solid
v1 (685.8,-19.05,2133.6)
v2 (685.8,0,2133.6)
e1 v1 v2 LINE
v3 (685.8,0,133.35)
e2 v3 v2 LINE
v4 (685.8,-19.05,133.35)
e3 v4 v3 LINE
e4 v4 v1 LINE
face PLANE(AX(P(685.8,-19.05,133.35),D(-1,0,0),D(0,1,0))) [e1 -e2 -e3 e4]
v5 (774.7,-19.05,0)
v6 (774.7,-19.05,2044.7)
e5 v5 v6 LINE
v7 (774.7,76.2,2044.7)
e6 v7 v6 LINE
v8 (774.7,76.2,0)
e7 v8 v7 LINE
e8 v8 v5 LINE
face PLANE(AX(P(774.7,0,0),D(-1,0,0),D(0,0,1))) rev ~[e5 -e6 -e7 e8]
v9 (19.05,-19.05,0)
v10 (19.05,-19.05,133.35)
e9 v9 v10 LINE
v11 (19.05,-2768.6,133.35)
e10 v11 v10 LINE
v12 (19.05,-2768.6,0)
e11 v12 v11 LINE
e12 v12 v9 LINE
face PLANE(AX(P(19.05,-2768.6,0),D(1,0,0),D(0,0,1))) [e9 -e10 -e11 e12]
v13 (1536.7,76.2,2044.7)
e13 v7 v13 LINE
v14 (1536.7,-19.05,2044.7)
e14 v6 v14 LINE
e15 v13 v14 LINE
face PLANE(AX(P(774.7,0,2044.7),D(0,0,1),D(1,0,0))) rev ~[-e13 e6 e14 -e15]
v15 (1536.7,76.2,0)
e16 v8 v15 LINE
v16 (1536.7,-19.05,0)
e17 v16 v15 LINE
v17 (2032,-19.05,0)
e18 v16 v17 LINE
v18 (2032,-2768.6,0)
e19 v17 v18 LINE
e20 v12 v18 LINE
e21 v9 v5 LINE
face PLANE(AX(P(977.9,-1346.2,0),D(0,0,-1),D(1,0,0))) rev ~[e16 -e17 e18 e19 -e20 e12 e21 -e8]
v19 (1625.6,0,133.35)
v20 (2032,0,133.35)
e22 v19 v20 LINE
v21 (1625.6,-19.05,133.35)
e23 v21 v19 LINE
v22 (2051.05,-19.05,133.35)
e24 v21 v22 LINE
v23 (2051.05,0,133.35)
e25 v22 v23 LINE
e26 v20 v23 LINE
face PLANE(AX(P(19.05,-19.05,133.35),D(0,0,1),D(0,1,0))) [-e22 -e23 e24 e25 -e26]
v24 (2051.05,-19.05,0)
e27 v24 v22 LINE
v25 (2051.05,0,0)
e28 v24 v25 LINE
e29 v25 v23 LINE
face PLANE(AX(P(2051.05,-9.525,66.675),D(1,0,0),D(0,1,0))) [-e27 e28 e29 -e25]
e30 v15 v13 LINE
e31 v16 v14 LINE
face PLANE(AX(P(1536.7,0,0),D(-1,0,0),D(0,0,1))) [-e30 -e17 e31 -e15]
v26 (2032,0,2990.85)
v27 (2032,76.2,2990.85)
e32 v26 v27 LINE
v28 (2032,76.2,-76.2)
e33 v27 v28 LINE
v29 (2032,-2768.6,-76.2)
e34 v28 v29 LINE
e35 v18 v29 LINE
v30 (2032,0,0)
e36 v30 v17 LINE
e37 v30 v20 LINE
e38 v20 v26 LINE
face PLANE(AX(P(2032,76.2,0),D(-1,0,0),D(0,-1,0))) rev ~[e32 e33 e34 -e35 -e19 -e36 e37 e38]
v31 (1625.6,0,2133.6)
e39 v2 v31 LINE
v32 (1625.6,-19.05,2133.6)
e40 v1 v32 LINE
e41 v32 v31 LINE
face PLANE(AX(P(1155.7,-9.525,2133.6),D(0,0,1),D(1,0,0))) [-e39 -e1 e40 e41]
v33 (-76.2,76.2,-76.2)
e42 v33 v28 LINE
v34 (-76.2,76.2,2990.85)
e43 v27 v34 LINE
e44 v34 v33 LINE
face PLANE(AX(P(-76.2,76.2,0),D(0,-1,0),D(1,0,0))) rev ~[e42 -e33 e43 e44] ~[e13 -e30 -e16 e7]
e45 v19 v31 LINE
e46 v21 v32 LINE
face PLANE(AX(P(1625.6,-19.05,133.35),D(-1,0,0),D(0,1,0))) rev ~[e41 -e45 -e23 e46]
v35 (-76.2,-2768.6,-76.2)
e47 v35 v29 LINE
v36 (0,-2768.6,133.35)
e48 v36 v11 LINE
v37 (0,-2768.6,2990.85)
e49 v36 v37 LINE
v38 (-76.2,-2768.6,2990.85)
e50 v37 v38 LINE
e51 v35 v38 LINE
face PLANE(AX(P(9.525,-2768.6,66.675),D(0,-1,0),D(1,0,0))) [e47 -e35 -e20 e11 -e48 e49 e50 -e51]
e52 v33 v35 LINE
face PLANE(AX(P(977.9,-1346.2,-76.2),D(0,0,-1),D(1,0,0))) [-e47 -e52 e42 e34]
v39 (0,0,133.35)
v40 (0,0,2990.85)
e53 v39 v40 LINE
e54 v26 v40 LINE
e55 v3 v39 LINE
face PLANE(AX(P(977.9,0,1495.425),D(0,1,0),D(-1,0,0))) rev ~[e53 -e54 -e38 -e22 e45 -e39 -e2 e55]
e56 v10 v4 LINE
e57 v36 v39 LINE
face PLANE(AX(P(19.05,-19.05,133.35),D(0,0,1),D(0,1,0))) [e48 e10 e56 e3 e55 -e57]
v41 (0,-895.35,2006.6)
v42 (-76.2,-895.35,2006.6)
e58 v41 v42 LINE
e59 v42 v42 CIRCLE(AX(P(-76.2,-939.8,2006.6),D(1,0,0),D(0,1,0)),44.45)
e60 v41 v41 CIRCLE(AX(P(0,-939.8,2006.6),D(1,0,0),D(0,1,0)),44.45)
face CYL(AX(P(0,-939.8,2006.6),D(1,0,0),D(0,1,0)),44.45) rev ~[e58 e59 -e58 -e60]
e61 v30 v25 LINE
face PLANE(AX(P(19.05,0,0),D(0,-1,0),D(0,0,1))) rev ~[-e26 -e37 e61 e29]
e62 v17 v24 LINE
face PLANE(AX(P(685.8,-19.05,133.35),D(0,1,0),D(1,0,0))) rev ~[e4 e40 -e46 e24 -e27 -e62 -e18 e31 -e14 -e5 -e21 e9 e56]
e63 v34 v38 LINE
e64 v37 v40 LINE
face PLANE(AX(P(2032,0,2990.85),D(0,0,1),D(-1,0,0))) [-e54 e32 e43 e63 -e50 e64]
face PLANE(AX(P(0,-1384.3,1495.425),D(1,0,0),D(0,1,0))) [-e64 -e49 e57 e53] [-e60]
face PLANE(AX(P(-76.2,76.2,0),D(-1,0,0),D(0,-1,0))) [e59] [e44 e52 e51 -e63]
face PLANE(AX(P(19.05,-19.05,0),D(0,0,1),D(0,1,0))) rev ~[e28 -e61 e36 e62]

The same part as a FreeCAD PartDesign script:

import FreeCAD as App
import Part
import Sketcher

V = App.Vector
Q = App.Units.Quantity


def add_polygon(sketch, points):
    """Adds a closed chain of lines whose ends are joined by coincident constraints."""
    first, n = sketch.GeometryCount, len(points)
    for a, b in zip(points, points[1:] + points[:1]):
        sketch.addGeometry(Part.LineSegment(App.Vector(*a, 0), App.Vector(*b, 0)), False)
    for i in range(n):
        sketch.addConstraint(Sketcher.Constraint("Coincident", first + i, 2, first + (i + 1) % n, 1))

doc = App.newDocument("Part")
body = doc.addObject("PartDesign::Body", "Body")

# Sketch on YZ plane
sketch1 = doc.addObject("Sketcher::SketchObject", "Sketch")
body.addObject(sketch1)
sketch1.AttachmentSupport = (doc.YZ_Plane, [""])
sketch1.MapMode = "FlatFace"
add_polygon(sketch1, [(-2768.6, 2990.85), (-2768.6, 0), (0, 0), (0, 2990.85)])  # lines 0-3
sketch1.addConstraint([
    Sketcher.Constraint("Vertical", 0),
    Sketcher.Constraint("Horizontal", 1),
    Sketcher.Constraint("Vertical", 2),
    Sketcher.Constraint("Horizontal", 3),
    Sketcher.Constraint("Coincident", 1, 2, -1, 1),
    Sketcher.Constraint("DistanceX", 1, 1, 1, 2, Q("109 in")),
    Sketcher.Constraint("DistanceY", 0, 2, 0, 1, Q("117.75 in")),
])
pad1 = doc.addObject("PartDesign::Pad", "Pad")
body.addObject(pad1)
pad1.Profile = sketch1
pad1.Length = Q("3 in")
pad1.Reversed = True

# Sketch on XZ plane
sketch2 = doc.addObject("Sketcher::SketchObject", "Sketch001")
body.addObject(sketch2)
sketch2.AttachmentSupport = (doc.XZ_Plane, [""])
sketch2.MapMode = "FlatFace"
add_polygon(sketch2, [(2032, 2990.85), (2032, 0), (-76.2, 0), (-76.2, 2990.85)])  # lines 0-3
sketch2.addConstraint([
    Sketcher.Constraint("Vertical", 0),
    Sketcher.Constraint("Horizontal", 1),
    Sketcher.Constraint("Vertical", 2),
    Sketcher.Constraint("Horizontal", 3),
    Sketcher.Constraint("PointOnObject", 0, 2, -1),
    Sketcher.Constraint("DistanceX", 1, 2, 1, 1, Q("83 in")),
    Sketcher.Constraint("DistanceX", -1, 1, 0, 2, Q("80 in")),
    Sketcher.Constraint("DistanceY", 0, 2, 0, 1, Q("117.75 in")),
])
pad2 = doc.addObject("PartDesign::Pad", "Pad001")
body.addObject(pad2)
pad2.Profile = sketch2
pad2.Length = Q("3 in")
pad2.Reversed = True

# Sketch on XY plane
sketch3 = doc.addObject("Sketcher::SketchObject", "Sketch002")
body.addObject(sketch3)
sketch3.AttachmentSupport = (doc.XY_Plane, [""])
sketch3.MapMode = "FlatFace"
add_polygon(sketch3, [(-76.2, -2768.6), (-76.2, 76.2), (2032, 76.2), (2032, -2768.6)])  # lines 0-3
sketch3.addConstraint([
    Sketcher.Constraint("Vertical", 0),
    Sketcher.Constraint("Horizontal", 1),
    Sketcher.Constraint("Vertical", 2),
    Sketcher.Constraint("Horizontal", 3),
    Sketcher.Constraint("DistanceX", 1, 1, 1, 2, Q("83 in")),
    Sketcher.Constraint("DistanceY", 0, 1, 0, 2, Q("112 in")),
    Sketcher.Constraint("DistanceX", 0, 2, -1, 1, Q("3 in")),
    Sketcher.Constraint("DistanceY", -1, 1, 0, 2, Q("3 in")),
])
pad3 = doc.addObject("PartDesign::Pad", "Pad002")
body.addObject(pad3)
pad3.Profile = sketch3
pad3.Length = Q("3 in")
pad3.Reversed = True

# Sketch on XZ plane
sketch4 = doc.addObject("Sketcher::SketchObject", "Sketch003")
body.addObject(sketch4)
sketch4.AttachmentSupport = (doc.XZ_Plane, [""])
sketch4.MapMode = "FlatFace"
add_polygon(sketch4, [(774.7, 2044.7), (774.7, 0), (1536.7, 0), (1536.7, 2044.7)])  # lines 0-3
sketch4.addConstraint([
    Sketcher.Constraint("Vertical", 0),
    Sketcher.Constraint("Horizontal", 1),
    Sketcher.Constraint("Vertical", 2),
    Sketcher.Constraint("Horizontal", 3),
    Sketcher.Constraint("PointOnObject", 0, 2, -1),
    Sketcher.Constraint("DistanceX", 1, 1, 1, 2, Q("30 in")),
    Sketcher.Constraint("DistanceY", 0, 2, 0, 1, Q("80.5 in")),
    Sketcher.Constraint("DistanceX", -1, 1, 0, 2, Q("30.5 in")),
])
pocket1 = doc.addObject("PartDesign::Pocket", "Pocket")
body.addObject(pocket1)
pocket1.Profile = sketch4
pocket1.Length = Q("3 in")

# Sketch on XZ plane
sketch5 = doc.addObject("Sketcher::SketchObject", "Sketch004")
body.addObject(sketch5)
sketch5.AttachmentSupport = (doc.XZ_Plane, [""])
sketch5.MapMode = "FlatFace"
sketch5.AttachmentOffset = App.Placement(V(0, 0, 109 * 25.4), App.Rotation())
add_polygon(sketch5, [(0, 133.35), (0, 0), (19.05, 0), (19.05, 133.35)])  # lines 0-3
sketch5.addConstraint([
    Sketcher.Constraint("Vertical", 0),
    Sketcher.Constraint("Horizontal", 1),
    Sketcher.Constraint("Vertical", 2),
    Sketcher.Constraint("Horizontal", 3),
    Sketcher.Constraint("Coincident", 0, 2, -1, 1),
    Sketcher.Constraint("DistanceX", 1, 1, 1, 2, Q("0.75 in")),
    Sketcher.Constraint("DistanceY", 0, 2, 0, 1, Q("5.25 in")),
])
pad4 = doc.addObject("PartDesign::Pad", "Pad003")
body.addObject(pad4)
pad4.Profile = sketch5
pad4.Length = Q("109 in")
pad4.Reversed = True

# Sketch on YZ plane
sketch6 = doc.addObject("Sketcher::SketchObject", "Sketch005")
body.addObject(sketch6)
sketch6.AttachmentSupport = (doc.YZ_Plane, [""])
sketch6.MapMode = "FlatFace"
sketch6.AttachmentOffset = App.Placement(V(0, 0, 0.75 * 25.4), App.Rotation())
add_polygon(sketch6, [(-19.05, 133.35), (-19.05, 0), (0, 0), (0, 133.35)])  # lines 0-3
sketch6.addConstraint([
    Sketcher.Constraint("Vertical", 0),
    Sketcher.Constraint("Horizontal", 1),
    Sketcher.Constraint("Vertical", 2),
    Sketcher.Constraint("Horizontal", 3),
    Sketcher.Constraint("Coincident", 1, 2, -1, 1),
    Sketcher.Constraint("DistanceX", 1, 1, 1, 2, Q("0.75 in")),
    Sketcher.Constraint("DistanceY", 0, 2, 0, 1, Q("5.25 in")),
])
pad5 = doc.addObject("PartDesign::Pad", "Pad004")
body.addObject(pad5)
pad5.Profile = sketch6
pad5.Length = Q("80 in")

# Sketch on XY plane
sketch7 = doc.addObject("Sketcher::SketchObject", "Sketch006")
body.addObject(sketch7)
sketch7.AttachmentSupport = (doc.XY_Plane, [""])
sketch7.MapMode = "FlatFace"
sketch7.AttachmentOffset = App.Placement(V(0, 0, 5.25 * 25.4), App.Rotation())
add_polygon(sketch7, [(685.8, 0), (685.8, -19.05), (1625.6, -19.05), (1625.6, 0)])  # lines 0-3
sketch7.addConstraint([
    Sketcher.Constraint("Vertical", 0),
    Sketcher.Constraint("Horizontal", 1),
    Sketcher.Constraint("Vertical", 2),
    Sketcher.Constraint("Horizontal", 3),
    Sketcher.Constraint("PointOnObject", 2, 2, -1),
    Sketcher.Constraint("DistanceX", 1, 1, 1, 2, Q("37 in")),
    Sketcher.Constraint("DistanceX", -1, 1, 0, 2, Q("27 in")),
    Sketcher.Constraint("DistanceY", 0, 2, 0, 1, Q("0.75 in")),
])
pad6 = doc.addObject("PartDesign::Pad", "Pad005")
body.addObject(pad6)
pad6.Profile = sketch7
pad6.Length = Q("78.75 in")

# Sketch on XZ plane
sketch8 = doc.addObject("Sketcher::SketchObject", "Sketch007")
body.addObject(sketch8)
sketch8.AttachmentSupport = (doc.XZ_Plane, [""])
sketch8.MapMode = "FlatFace"
add_polygon(sketch8, [(774.7, 2044.7), (774.7, 0), (1536.7, 0), (1536.7, 2044.7)])  # lines 0-3
sketch8.addConstraint([
    Sketcher.Constraint("Vertical", 0),
    Sketcher.Constraint("Horizontal", 1),
    Sketcher.Constraint("Vertical", 2),
    Sketcher.Constraint("Horizontal", 3),
    Sketcher.Constraint("PointOnObject", 0, 2, -1),
    Sketcher.Constraint("DistanceX", 1, 1, 1, 2, Q("30 in")),
    Sketcher.Constraint("DistanceY", 0, 2, 0, 1, Q("80.5 in")),
    Sketcher.Constraint("DistanceX", -1, 1, 0, 2, Q("30.5 in")),
])
pocket2 = doc.addObject("PartDesign::Pocket", "Pocket001")
body.addObject(pocket2)
pocket2.Profile = sketch8
pocket2.Length = Q("0.75 in")
pocket2.Reversed = True

# Sketch on YZ plane
sketch9 = doc.addObject("Sketcher::SketchObject", "Sketch008")
body.addObject(sketch9)
sketch9.AttachmentSupport = (doc.YZ_Plane, [""])
sketch9.MapMode = "FlatFace"
sketch9.addGeometry(Part.Circle(V(-939.8, 2006.6, 0), V(0, 0, 1), 44.45), False)
sketch9.addConstraint([
    Sketcher.Constraint("Diameter", 0, Q("3.5 in")),
    Sketcher.Constraint("DistanceX", 0, 3, -1, 1, Q("37 in")),
    Sketcher.Constraint("DistanceY", -1, 1, 0, 3, Q("79 in")),
])
pocket3 = doc.addObject("PartDesign::Pocket", "Pocket002")
body.addObject(pocket3)
pocket3.Profile = sketch9
pocket3.Length = Q("3 in")

doc.recompute()
